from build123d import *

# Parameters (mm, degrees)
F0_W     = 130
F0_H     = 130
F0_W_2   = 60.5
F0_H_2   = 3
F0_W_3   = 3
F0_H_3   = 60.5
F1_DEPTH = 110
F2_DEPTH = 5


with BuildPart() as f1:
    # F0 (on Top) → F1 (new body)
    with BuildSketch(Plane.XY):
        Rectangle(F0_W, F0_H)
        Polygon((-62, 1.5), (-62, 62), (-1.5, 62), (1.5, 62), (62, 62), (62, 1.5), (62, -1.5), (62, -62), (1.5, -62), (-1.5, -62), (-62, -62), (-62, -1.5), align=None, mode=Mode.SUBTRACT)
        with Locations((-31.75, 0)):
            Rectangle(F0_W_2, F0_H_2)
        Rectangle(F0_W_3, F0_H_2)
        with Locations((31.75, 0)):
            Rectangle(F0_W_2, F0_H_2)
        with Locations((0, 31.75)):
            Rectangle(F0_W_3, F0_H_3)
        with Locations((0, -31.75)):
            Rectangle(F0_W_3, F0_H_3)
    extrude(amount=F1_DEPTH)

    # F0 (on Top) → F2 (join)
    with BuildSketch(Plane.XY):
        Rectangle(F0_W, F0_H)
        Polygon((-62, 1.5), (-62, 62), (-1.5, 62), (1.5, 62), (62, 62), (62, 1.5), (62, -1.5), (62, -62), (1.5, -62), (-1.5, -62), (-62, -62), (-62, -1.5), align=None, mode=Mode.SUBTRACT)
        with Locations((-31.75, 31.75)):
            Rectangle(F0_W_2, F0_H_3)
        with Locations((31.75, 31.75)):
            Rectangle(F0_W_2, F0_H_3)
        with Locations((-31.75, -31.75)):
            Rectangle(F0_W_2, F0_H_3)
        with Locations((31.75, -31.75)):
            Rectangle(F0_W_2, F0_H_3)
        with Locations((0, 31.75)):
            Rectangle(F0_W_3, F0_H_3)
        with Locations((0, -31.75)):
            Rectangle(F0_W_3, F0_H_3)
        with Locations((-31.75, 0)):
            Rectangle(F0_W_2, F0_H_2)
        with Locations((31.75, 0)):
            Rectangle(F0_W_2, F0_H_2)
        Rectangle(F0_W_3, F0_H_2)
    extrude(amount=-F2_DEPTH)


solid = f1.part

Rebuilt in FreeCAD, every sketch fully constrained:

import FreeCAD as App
import Part
import Sketcher

V = App.Vector
Q = App.Units.Quantity

doc = App.newDocument("Part")
body = doc.addObject("PartDesign::Body", "Body")

sketch1 = body.newObject("Sketcher::SketchObject", "Sketch")
sketch1.AttachmentSupport = (doc.getObject("XY_Plane"), [""])
sketch1.MapMode = "FlatFace"
sketch1.addGeometry(Part.LineSegment(V(-65, 65, 0), V(-65, -65, 0)), False)
sketch1.addGeometry(Part.LineSegment(V(-65, -65, 0), V(65, -65, 0)), False)
sketch1.addGeometry(Part.LineSegment(V(65, -65, 0), V(65, 65, 0)), False)
sketch1.addGeometry(Part.LineSegment(V(65, 65, 0), V(-65, 65, 0)), False)
sketch1.addGeometry(Part.LineSegment(V(-62, -62, 0), V(-62, -2, 0)), False)
sketch1.addGeometry(Part.LineSegment(V(-62, -2, 0), V(-2, -2, 0)), False)
sketch1.addGeometry(Part.LineSegment(V(-2, -2, 0), V(-2, -62, 0)), False)
sketch1.addGeometry(Part.LineSegment(V(-2, -62, 0), V(-62, -62, 0)), False)
sketch1.addGeometry(Part.LineSegment(V(2, -2, 0), V(62, -2, 0)), False)
sketch1.addGeometry(Part.LineSegment(V(62, -2, 0), V(62, -62, 0)), False)
sketch1.addGeometry(Part.LineSegment(V(62, -62, 0), V(2, -62, 0)), False)
sketch1.addGeometry(Part.LineSegment(V(2, -62, 0), V(2, -2, 0)), False)
sketch1.addGeometry(Part.LineSegment(V(-62, 2, 0), V(-62, 62, 0)), False)
sketch1.addGeometry(Part.LineSegment(V(-62, 62, 0), V(-2, 62, 0)), False)
sketch1.addGeometry(Part.LineSegment(V(-2, 62, 0), V(-2, 2, 0)), False)
sketch1.addGeometry(Part.LineSegment(V(-2, 2, 0), V(-62, 2, 0)), False)
sketch1.addGeometry(Part.LineSegment(V(2, 62, 0), V(62, 62, 0)), False)
sketch1.addGeometry(Part.LineSegment(V(62, 62, 0), V(62, 2, 0)), False)
sketch1.addGeometry(Part.LineSegment(V(62, 2, 0), V(2, 2, 0)), False)
sketch1.addGeometry(Part.LineSegment(V(2, 2, 0), V(2, 62, 0)), False)
sketch1.addConstraint(Sketcher.Constraint("Coincident", 0, 2, 1, 1))
sketch1.addConstraint(Sketcher.Constraint("Coincident", 1, 2, 2, 1))
sketch1.addConstraint(Sketcher.Constraint("Coincident", 2, 2, 3, 1))
sketch1.addConstraint(Sketcher.Constraint("Coincident", 3, 2, 0, 1))
sketch1.addConstraint(Sketcher.Constraint("Coincident", 4, 2, 5, 1))
sketch1.addConstraint(Sketcher.Constraint("Coincident", 5, 2, 6, 1))
sketch1.addConstraint(Sketcher.Constraint("Coincident", 6, 2, 7, 1))
sketch1.addConstraint(Sketcher.Constraint("Coincident", 7, 2, 4, 1))
sketch1.addConstraint(Sketcher.Constraint("Coincident", 8, 2, 9, 1))
sketch1.addConstraint(Sketcher.Constraint("Coincident", 9, 2, 10, 1))
sketch1.addConstraint(Sketcher.Constraint("Coincident", 10, 2, 11, 1))
sketch1.addConstraint(Sketcher.Constraint("Coincident", 11, 2, 8, 1))
sketch1.addConstraint(Sketcher.Constraint("Coincident", 12, 2, 13, 1))
sketch1.addConstraint(Sketcher.Constraint("Coincident", 13, 2, 14, 1))
sketch1.addConstraint(Sketcher.Constraint("Coincident", 14, 2, 15, 1))
sketch1.addConstraint(Sketcher.Constraint("Coincident", 15, 2, 12, 1))
sketch1.addConstraint(Sketcher.Constraint("Coincident", 16, 2, 17, 1))
sketch1.addConstraint(Sketcher.Constraint("Coincident", 17, 2, 18, 1))
sketch1.addConstraint(Sketcher.Constraint("Coincident", 18, 2, 19, 1))
sketch1.addConstraint(Sketcher.Constraint("Coincident", 19, 2, 16, 1))
sketch1.addConstraint(Sketcher.Constraint("Vertical", 0))
sketch1.addConstraint(Sketcher.Constraint("Horizontal", 1))
sketch1.addConstraint(Sketcher.Constraint("Vertical", 2))
sketch1.addConstraint(Sketcher.Constraint("Horizontal", 3))
sketch1.addConstraint(Sketcher.Constraint("Vertical", 4))
sketch1.addConstraint(Sketcher.Constraint("Horizontal", 5))
sketch1.addConstraint(Sketcher.Constraint("Vertical", 6))
sketch1.addConstraint(Sketcher.Constraint("Horizontal", 7))
sketch1.addConstraint(Sketcher.Constraint("Horizontal", 8))
sketch1.addConstraint(Sketcher.Constraint("Vertical", 9))
sketch1.addConstraint(Sketcher.Constraint("Horizontal", 10))
sketch1.addConstraint(Sketcher.Constraint("Vertical", 11))
sketch1.addConstraint(Sketcher.Constraint("Vertical", 12))
sketch1.addConstraint(Sketcher.Constraint("Horizontal", 13))
sketch1.addConstraint(Sketcher.Constraint("Vertical", 14))
sketch1.addConstraint(Sketcher.Constraint("Horizontal", 15))
sketch1.addConstraint(Sketcher.Constraint("Horizontal", 16))
sketch1.addConstraint(Sketcher.Constraint("Vertical", 17))
sketch1.addConstraint(Sketcher.Constraint("Horizontal", 18))
sketch1.addConstraint(Sketcher.Constraint("Vertical", 19))
sketch1.addConstraint(Sketcher.Constraint("Symmetric", 0, 2, 2, 2, -1, 1))
sketch1.addConstraint(Sketcher.Constraint("Symmetric", 9, 2, 12, 2, -1, 1))
sketch1.addConstraint(Sketcher.Constraint("Symmetric", 11, 2, 14, 2, -1, 1))
sketch1.addConstraint(Sketcher.Constraint("Symmetric", 7, 2, 16, 2, -1, 1))
sketch1.addConstraint(Sketcher.Constraint("Symmetric", 5, 2, 18, 2, -1, 1))
sketch1.addConstraint(Sketcher.Constraint("Symmetric", 4, 2, 8, 2, -2))
sketch1.addConstraint(Sketcher.Constraint("Symmetric", 6, 2, 10, 2, -2))
sketch1.addConstraint(Sketcher.Constraint("Equal", 3, 0))
sketch1.addConstraint(Sketcher.Constraint("Equal", 18, 4))
sketch1.addConstraint(Sketcher.Constraint("DistanceX", 1, 1, 1, 2, Q("130 mm")))
sketch1.addConstraint(Sketcher.Constraint("DistanceX", 5, 1, 5, 2, Q("60.5 mm")))
sketch1.addConstraint(Sketcher.Constraint("DistanceX", 4, 2, -1, 1, Q("62 mm")))
sketch1.addConstraint(Sketcher.Constraint("DistanceY", 6, 2, -1, 1, Q("62 mm")))
pad1 = body.newObject("PartDesign::Pad", "Pad")
pad1.Profile = sketch1
pad1.Length = 110

sketch2 = body.newObject("Sketcher::SketchObject", "Sketch001")
sketch2.AttachmentSupport = (doc.getObject("XY_Plane"), [""])
sketch2.MapMode = "FlatFace"
sketch2.addGeometry(Part.LineSegment(V(-65, 65, 0), V(-65, -65, 0)), False)
sketch2.addGeometry(Part.LineSegment(V(-65, -65, 0), V(65, -65, 0)), False)
sketch2.addGeometry(Part.LineSegment(V(65, -65, 0), V(65, 65, 0)), False)
sketch2.addGeometry(Part.LineSegment(V(65, 65, 0), V(-65, 65, 0)), False)
sketch2.addConstraint(Sketcher.Constraint("Coincident", 0, 2, 1, 1))
sketch2.addConstraint(Sketcher.Constraint("Coincident", 1, 2, 2, 1))
sketch2.addConstraint(Sketcher.Constraint("Coincident", 2, 2, 3, 1))
sketch2.addConstraint(Sketcher.Constraint("Coincident", 3, 2, 0, 1))
sketch2.addConstraint(Sketcher.Constraint("Vertical", 0))
sketch2.addConstraint(Sketcher.Constraint("Horizontal", 1))
sketch2.addConstraint(Sketcher.Constraint("Vertical", 2))
sketch2.addConstraint(Sketcher.Constraint("Horizontal", 3))
sketch2.addConstraint(Sketcher.Constraint("Symmetric", 0, 2, 2, 2, -1, 1))
sketch2.addConstraint(Sketcher.Constraint("Equal", 3, 0))
sketch2.addConstraint(Sketcher.Constraint("DistanceX", 1, 1, 1, 2, Q("130 mm")))
pad2 = body.newObject("PartDesign::Pad", "Pad001")
pad2.Profile = sketch2
pad2.Length = 5
pad2.Reversed = True

doc.recompute()
